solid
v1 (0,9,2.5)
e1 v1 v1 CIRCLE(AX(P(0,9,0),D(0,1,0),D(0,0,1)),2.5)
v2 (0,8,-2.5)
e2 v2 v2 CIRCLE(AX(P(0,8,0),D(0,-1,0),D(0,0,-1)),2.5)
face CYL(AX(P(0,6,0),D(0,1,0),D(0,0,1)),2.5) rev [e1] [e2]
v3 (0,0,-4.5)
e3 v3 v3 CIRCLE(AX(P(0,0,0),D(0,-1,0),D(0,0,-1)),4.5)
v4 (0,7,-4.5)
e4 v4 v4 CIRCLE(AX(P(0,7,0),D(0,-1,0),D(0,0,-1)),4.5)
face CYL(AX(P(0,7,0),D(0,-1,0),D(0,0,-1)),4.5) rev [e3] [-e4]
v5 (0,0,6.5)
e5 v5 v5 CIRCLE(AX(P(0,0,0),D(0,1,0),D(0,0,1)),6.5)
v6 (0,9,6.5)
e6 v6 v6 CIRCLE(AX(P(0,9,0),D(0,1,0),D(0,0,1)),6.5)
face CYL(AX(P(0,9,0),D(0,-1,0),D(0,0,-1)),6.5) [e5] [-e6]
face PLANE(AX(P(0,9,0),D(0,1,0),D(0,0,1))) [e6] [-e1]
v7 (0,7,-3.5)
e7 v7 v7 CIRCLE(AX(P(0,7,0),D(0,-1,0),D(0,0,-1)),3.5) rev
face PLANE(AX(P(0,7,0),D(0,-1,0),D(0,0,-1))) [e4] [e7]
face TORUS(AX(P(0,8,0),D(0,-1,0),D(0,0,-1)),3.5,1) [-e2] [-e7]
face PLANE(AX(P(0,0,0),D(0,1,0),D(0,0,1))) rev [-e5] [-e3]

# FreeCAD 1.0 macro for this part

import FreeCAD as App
import Part
import Sketcher


def edges_at(feature, points):
    """Names of the edges that pass closest to the given points."""
    edges = feature.Shape.Edges
    near = lambda p: min(range(len(edges)), key=lambda i: edges[i].distToShape(Part.Vertex(*p))[0])
    return sorted({f"Edge{near(p) + 1}" for p in points})

doc = App.newDocument("Part")
body = doc.addObject("PartDesign::Body", "Body")

sketch1 = body.newObject("Sketcher::SketchObject", "Sketch")
sketch1.AttachmentSupport = (doc.getObject("XZ_Plane"), [""])
sketch1.MapMode = "FlatFace"
sketch1.addGeometry(Part.Circle(App.Vector(0, 0, 0), App.Vector(0, 0, 1), 6), False)
sketch1.addConstraint([
    Sketcher.Constraint("Coincident", 0, 3, -1, 1),
    Sketcher.Constraint("Diameter", 0, 13.0),
])
pad1 = body.newObject("PartDesign::Pad", "Pad")
pad1.Profile = sketch1
pad1.Length = 9
pad1.Reversed = True

sketch2 = body.newObject("Sketcher::SketchObject", "Sketch001")
sketch2.AttachmentSupport = (doc.getObject("XZ_Plane"), [""])
sketch2.MapMode = "FlatFace"
sketch2.addGeometry(Part.Circle(App.Vector(0, 0, 0), App.Vector(0, 0, 1), 4.5), False)
sketch2.addConstraint([
    Sketcher.Constraint("Coincident", 0, 3, -1, 1),
    Sketcher.Constraint("Diameter", 0, 9.0),
])
pocket1 = body.newObject("PartDesign::Pocket", "Pocket")
pocket1.Profile = sketch2
pocket1.Length = 7

sketch3 = body.newObject("Sketcher::SketchObject", "Sketch002")
sketch3.AttachmentSupport = (doc.getObject("XZ_Plane"), [""])
sketch3.MapMode = "FlatFace"
sketch3.AttachmentOffset = App.Placement(App.Vector(0, 0, -9), App.Rotation())
sketch3.addGeometry(Part.Circle(App.Vector(0, 0, 0), App.Vector(0, 0, 1), 2.5), False)
sketch3.addConstraint([
    Sketcher.Constraint("Coincident", 0, 3, -1, 1),
    Sketcher.Constraint("Diameter", 0, 5.0),
])
pocket2 = body.newObject("PartDesign::Pocket", "Pocket001")
pocket2.Profile = sketch3
pocket2.Length = 3
pocket2.Reversed = True
doc.recompute()

fillet = body.newObject("PartDesign::Fillet", "Fillet")
fillet.Base = (pocket2, edges_at(pocket2, [(-2.5, 7, 0)]))
fillet.Radius = 1

doc.recompute()
